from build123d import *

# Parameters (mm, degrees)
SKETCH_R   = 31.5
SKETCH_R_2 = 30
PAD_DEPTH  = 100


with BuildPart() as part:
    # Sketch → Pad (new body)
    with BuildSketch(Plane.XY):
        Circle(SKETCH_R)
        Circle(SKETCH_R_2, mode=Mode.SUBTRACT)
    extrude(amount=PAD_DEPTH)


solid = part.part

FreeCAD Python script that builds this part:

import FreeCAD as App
import Part
import Sketcher

V = App.Vector
Q = App.Units.Quantity

doc = App.newDocument("Part")
body = doc.addObject("PartDesign::Body", "Body")

# Sketch on XY plane
sketch1 = body.newObject("Sketcher::SketchObject", "Sketch")
sketch1.AttachmentSupport = (doc.getObject("XY_Plane"), [""])
sketch1.MapMode = "FlatFace"
sketch1.addGeometry(Part.Circle(V(0, 0, 0), V(0, 0, 1), 32), False)
sketch1.addGeometry(Part.Circle(V(0, 0, 0), V(0, 0, 1), 30), False)
sketch1.addConstraint(Sketcher.Constraint("Coincident", 0, 3, -1, 1))
sketch1.addConstraint(Sketcher.Constraint("Coincident", 1, 3, -1, 1))
sketch1.addConstraint(Sketcher.Constraint("Diameter", 0, Q("63 mm")))
sketch1.addConstraint(Sketcher.Constraint("Diameter", 1, Q("60 mm")))
pad1 = body.newObject("PartDesign::Pad", "Pad")
pad1.Profile = sketch1
pad1.Length = 100

doc.recompute()
